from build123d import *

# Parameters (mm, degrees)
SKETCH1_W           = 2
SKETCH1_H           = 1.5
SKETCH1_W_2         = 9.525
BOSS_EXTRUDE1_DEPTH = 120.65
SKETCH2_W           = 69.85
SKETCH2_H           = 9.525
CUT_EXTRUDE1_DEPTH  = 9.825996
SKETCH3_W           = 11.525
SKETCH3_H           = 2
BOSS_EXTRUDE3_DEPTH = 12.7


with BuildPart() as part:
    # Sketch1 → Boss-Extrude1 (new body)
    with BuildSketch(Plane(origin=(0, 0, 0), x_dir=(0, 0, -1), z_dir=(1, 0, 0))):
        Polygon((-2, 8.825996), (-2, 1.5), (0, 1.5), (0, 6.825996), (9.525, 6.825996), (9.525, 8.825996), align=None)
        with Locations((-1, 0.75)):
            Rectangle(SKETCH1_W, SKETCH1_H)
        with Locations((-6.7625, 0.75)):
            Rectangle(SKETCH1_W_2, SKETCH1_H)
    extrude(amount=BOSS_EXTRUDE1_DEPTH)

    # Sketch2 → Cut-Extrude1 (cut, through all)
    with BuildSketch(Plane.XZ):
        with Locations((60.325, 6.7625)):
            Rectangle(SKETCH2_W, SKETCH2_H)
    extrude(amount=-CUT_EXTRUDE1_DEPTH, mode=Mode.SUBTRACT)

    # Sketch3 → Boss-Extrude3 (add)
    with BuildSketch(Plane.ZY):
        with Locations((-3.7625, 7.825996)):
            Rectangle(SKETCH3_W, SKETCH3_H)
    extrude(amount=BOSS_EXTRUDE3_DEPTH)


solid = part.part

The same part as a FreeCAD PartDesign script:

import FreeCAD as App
import Part
import Sketcher
from FreeCAD import Vector
Q = App.Units.Quantity

doc = App.newDocument("Part")
body = doc.addObject("PartDesign::Body", "Body")

# Sketch on YZ plane
sketch1 = body.newObject("Sketcher::SketchObject", "Sketch")
sketch1.AttachmentSupport = (doc.getObject("YZ_Plane"), [""])
sketch1.MapMode = "FlatFace"
sketch1.addGeometry([
    Part.LineSegment(Vector(8.8, 2, 0), Vector(1.5, 2, 0)),  # 0
    Part.LineSegment(Vector(1.5, 2, 0), Vector(1.5, 11.5, 0)),  # 1
    Part.LineSegment(Vector(1.5, 11.5, 0), Vector(0, 11.5, 0)),  # 2
    Part.LineSegment(Vector(0, 11.5, 0), Vector(0, 0, 0)),  # 3
    Part.LineSegment(Vector(0, 0, 0), Vector(6.8, 0, 0)),  # 4
    Part.LineSegment(Vector(6.8, 0, 0), Vector(6.8, -9.5, 0)),  # 5
    Part.LineSegment(Vector(6.8, -9.5, 0), Vector(8.8, -9.5, 0)),  # 6
    Part.LineSegment(Vector(8.8, -9.5, 0), Vector(8.8, 2, 0)),  # 7
], False)
sketch1.addConstraint([
    Sketcher.Constraint("Coincident", 0, 2, 1, 1),
    Sketcher.Constraint("Coincident", 1, 2, 2, 1),
    Sketcher.Constraint("Coincident", 2, 2, 3, 1),
    Sketcher.Constraint("Coincident", 3, 2, 4, 1),
    Sketcher.Constraint("Coincident", 4, 2, 5, 1),
    Sketcher.Constraint("Coincident", 5, 2, 6, 1),
    Sketcher.Constraint("Coincident", 6, 2, 7, 1),
    Sketcher.Constraint("Coincident", 7, 2, 0, 1),
    Sketcher.Constraint("Horizontal", 0),
    Sketcher.Constraint("Vertical", 1),
    Sketcher.Constraint("Horizontal", 2),
    Sketcher.Constraint("Vertical", 3),
    Sketcher.Constraint("Horizontal", 4),
    Sketcher.Constraint("Vertical", 5),
    Sketcher.Constraint("Horizontal", 6),
    Sketcher.Constraint("Vertical", 7),
    Sketcher.Constraint("Coincident", 3, 2, -1, 1),
    Sketcher.Constraint("Equal", 1, 5),
    Sketcher.Constraint("DistanceY", 1, 1, 1, 2, Q("0.375 in")),
    Sketcher.Constraint("DistanceX", 2, 2, 2, 1, Q("1.5 mm")),
    Sketcher.Constraint("DistanceX", 6, 1, 6, 2, Q("2 mm")),
    Sketcher.Constraint("DistanceY", 3, 2, 3, 1, Q("11.525 mm")),
    Sketcher.Constraint("DistanceX", 0, 2, 0, 1, Q("7.325996 mm")),
])
pad1 = body.newObject("PartDesign::Pad", "Pad")
pad1.Profile = sketch1
pad1.Length = Q("4.75 in")

# Sketch on XZ plane
sketch2 = body.newObject("Sketcher::SketchObject", "Sketch001")
sketch2.AttachmentSupport = (doc.getObject("XZ_Plane"), [""])
sketch2.MapMode = "FlatFace"
sketch2.addGeometry([
    Part.LineSegment(Vector(25, 12, 0), Vector(25, 2, 0)),
    Part.LineSegment(Vector(25, 2, 0), Vector(95, 2, 0)),
    Part.LineSegment(Vector(95, 2, 0), Vector(95, 12, 0)),
    Part.LineSegment(Vector(95, 12, 0), Vector(25, 12, 0)),
], False)
sketch2.addConstraint([
    Sketcher.Constraint("Coincident", 0, 2, 1, 1),
    Sketcher.Constraint("Coincident", 1, 2, 2, 1),
    Sketcher.Constraint("Coincident", 2, 2, 3, 1),
    Sketcher.Constraint("Coincident", 3, 2, 0, 1),
    Sketcher.Constraint("Vertical", 0),
    Sketcher.Constraint("Horizontal", 1),
    Sketcher.Constraint("Vertical", 2),
    Sketcher.Constraint("Horizontal", 3),
    Sketcher.Constraint("DistanceX", -1, 1, 0, 2, Q("1 in")),
    Sketcher.Constraint("DistanceX", 1, 1, 1, 2, Q("2.75 in")),
    Sketcher.Constraint("DistanceY", 0, 2, 0, 1, Q("0.375 in")),
    Sketcher.Constraint("DistanceY", -1, 1, 0, 2, Q("2 mm")),
])
pocket1 = body.newObject("PartDesign::Pocket", "Pocket")
pocket1.Profile = sketch2
pocket1.Type = "ThroughAll"

# Sketch on YZ plane
sketch3 = body.newObject("Sketcher::SketchObject", "Sketch002")
sketch3.AttachmentSupport = (doc.getObject("YZ_Plane"), [""])
sketch3.MapMode = "FlatFace"
sketch3.addGeometry([
    Part.LineSegment(Vector(8.8, -9.5, 0), Vector(6.8, -9.5, 0)),
    Part.LineSegment(Vector(6.8, -9.5, 0), Vector(6.8, 2, 0)),
    Part.LineSegment(Vector(6.8, 2, 0), Vector(8.8, 2, 0)),
    Part.LineSegment(Vector(8.8, 2, 0), Vector(8.8, -9.5, 0)),
], False)
sketch3.addConstraint([
    Sketcher.Constraint("Coincident", 0, 2, 1, 1),
    Sketcher.Constraint("Coincident", 1, 2, 2, 1),
    Sketcher.Constraint("Coincident", 2, 2, 3, 1),
    Sketcher.Constraint("Coincident", 3, 2, 0, 1),
    Sketcher.Constraint("Horizontal", 0),
    Sketcher.Constraint("Vertical", 1),
    Sketcher.Constraint("Horizontal", 2),
    Sketcher.Constraint("Vertical", 3),
    Sketcher.Constraint("DistanceY", 0, 2, -1, 1, Q("0.375 in")),
    Sketcher.Constraint("DistanceX", 0, 2, 0, 1, Q("2 mm")),
    Sketcher.Constraint("DistanceY", 1, 1, 1, 2, Q("11.525 mm")),
    Sketcher.Constraint("DistanceX", -1, 1, 0, 2, Q("6.825996 mm")),
])
pad2 = body.newObject("PartDesign::Pad", "Pad001")
pad2.Profile = sketch3
pad2.Length = Q("0.5 in")
pad2.Reversed = True

doc.recompute()
